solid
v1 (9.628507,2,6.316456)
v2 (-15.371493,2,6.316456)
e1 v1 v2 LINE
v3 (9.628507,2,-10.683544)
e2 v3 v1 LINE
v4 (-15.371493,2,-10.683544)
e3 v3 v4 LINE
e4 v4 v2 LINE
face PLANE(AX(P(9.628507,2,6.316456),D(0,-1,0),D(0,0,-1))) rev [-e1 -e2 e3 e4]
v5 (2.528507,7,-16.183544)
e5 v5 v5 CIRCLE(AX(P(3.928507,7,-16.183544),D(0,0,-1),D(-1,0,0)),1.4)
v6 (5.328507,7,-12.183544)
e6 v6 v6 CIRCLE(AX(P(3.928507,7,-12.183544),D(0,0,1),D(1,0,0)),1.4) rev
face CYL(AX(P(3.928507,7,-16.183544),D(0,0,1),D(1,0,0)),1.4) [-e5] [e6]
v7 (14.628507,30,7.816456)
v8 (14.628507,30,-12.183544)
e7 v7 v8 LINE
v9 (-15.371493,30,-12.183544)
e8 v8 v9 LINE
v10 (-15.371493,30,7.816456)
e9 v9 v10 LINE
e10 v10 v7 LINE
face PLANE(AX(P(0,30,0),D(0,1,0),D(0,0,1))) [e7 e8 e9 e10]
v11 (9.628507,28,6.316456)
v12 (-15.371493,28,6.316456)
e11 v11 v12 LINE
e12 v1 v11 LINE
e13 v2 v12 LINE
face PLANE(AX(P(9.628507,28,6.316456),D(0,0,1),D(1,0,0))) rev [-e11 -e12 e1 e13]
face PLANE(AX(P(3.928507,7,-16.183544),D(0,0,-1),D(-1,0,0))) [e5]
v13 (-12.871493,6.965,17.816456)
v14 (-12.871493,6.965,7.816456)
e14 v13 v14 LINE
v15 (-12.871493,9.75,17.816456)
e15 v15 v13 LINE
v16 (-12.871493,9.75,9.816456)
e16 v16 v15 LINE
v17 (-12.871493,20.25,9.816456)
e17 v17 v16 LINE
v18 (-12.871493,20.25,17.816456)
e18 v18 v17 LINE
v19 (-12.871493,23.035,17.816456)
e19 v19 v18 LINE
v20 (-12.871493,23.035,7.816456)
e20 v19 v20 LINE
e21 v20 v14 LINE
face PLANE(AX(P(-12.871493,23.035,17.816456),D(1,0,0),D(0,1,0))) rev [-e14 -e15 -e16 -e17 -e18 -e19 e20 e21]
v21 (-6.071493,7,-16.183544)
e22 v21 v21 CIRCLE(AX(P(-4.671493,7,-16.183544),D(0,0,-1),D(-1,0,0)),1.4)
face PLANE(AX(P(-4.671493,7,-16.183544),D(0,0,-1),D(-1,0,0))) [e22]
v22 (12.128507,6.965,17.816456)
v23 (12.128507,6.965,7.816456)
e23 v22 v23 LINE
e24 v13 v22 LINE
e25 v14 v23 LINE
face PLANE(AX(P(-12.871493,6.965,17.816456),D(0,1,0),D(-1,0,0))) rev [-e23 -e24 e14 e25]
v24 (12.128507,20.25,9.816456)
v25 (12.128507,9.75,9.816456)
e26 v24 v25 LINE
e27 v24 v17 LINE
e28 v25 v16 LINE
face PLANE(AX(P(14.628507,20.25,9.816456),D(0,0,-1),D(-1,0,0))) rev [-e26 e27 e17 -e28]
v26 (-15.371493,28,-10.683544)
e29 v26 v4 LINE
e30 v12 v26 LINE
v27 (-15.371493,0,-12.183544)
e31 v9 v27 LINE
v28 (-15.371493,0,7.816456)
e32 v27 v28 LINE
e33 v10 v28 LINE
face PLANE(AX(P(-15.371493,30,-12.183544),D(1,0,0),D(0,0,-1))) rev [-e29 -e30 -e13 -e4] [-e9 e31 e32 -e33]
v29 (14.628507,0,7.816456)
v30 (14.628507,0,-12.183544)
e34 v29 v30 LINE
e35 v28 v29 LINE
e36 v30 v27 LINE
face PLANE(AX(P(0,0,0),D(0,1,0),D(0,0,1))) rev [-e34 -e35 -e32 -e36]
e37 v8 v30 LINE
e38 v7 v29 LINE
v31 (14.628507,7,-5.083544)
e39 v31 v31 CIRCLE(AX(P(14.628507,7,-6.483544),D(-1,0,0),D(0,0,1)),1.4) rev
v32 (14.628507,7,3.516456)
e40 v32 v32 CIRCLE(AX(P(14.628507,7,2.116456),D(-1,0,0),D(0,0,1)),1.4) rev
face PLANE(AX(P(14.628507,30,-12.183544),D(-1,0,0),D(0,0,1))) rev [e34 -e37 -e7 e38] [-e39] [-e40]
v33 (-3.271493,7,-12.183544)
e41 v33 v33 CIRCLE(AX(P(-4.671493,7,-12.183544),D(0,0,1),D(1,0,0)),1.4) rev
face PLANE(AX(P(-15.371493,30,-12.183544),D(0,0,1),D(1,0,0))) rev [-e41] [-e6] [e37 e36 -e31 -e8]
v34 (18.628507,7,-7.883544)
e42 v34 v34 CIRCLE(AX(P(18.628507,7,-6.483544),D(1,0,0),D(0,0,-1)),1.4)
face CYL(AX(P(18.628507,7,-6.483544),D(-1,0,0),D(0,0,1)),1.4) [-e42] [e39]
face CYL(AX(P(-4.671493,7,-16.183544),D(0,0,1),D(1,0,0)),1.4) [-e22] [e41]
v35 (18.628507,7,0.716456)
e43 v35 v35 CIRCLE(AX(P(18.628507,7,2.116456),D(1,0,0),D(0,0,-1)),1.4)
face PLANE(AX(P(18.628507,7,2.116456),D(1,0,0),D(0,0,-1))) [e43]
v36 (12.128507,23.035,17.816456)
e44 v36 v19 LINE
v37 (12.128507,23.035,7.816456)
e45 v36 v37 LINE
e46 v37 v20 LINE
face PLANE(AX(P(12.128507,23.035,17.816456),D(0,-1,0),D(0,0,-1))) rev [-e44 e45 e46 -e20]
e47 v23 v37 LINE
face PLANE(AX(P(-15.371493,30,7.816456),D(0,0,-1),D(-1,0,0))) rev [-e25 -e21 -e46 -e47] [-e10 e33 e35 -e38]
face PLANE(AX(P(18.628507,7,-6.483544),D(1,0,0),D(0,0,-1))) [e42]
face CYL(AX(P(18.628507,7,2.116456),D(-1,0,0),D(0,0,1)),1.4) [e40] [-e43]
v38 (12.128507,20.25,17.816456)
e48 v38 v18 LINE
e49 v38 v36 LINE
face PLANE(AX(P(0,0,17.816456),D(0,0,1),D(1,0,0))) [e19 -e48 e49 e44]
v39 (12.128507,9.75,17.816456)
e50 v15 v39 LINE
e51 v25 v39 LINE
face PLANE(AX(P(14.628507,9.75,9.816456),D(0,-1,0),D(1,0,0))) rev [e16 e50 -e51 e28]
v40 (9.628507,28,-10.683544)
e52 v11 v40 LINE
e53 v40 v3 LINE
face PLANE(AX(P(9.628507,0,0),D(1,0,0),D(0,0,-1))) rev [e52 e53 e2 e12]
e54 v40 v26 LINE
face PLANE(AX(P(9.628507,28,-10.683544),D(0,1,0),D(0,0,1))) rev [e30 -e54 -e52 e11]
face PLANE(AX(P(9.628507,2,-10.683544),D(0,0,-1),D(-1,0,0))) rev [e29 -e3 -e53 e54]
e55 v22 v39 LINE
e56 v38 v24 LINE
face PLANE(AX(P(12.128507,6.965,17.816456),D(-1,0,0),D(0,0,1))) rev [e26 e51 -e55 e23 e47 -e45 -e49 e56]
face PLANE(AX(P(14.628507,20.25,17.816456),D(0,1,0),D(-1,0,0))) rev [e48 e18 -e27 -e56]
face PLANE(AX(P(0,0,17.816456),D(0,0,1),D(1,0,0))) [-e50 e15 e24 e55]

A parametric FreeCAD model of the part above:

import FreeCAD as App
import Part
import Sketcher

V = App.Vector
Q = App.Units.Quantity


def add_polygon(sketch, points):
    """Adds a closed chain of lines whose ends are joined by coincident constraints."""
    first, n = sketch.GeometryCount, len(points)
    for a, b in zip(points, points[1:] + points[:1]):
        sketch.addGeometry(Part.LineSegment(App.Vector(*a, 0), App.Vector(*b, 0)), False)
    for i in range(n):
        sketch.addConstraint(Sketcher.Constraint("Coincident", first + i, 2, first + (i + 1) % n, 1))

doc = App.newDocument("Part")
params = doc.addObject("Spreadsheet::Sheet", "Params")
for row, (alias, value) in enumerate([
    ("sketch1_width", "30 mm"),
    ("sketch1_height", "20 mm"),
    ("pad1_length", "30 mm"),
    ("sketch2_width", "25 mm"),
    ("sketch2_height", "16.07 mm"),
    ("pad2_length", "10 mm"),
    ("sketch3_height", "8 mm"),
    ("sketch3_width", "10.5 mm"),
    ("sketch4_width", "26 mm"),
    ("sketch4_height", "17 mm"),
    ("pocket2_length", "25 mm"),
    ("sketch5_diameter", "2.8 mm"),
    ("pad3_length", "4 mm"),
    ("sketch6_diameter", "2.8 mm"),
    ("pad4_length", "4 mm"),
], start=1):
    params.set(f"A{row}", alias)
    params.set(f"B{row}", "=" + value)
    params.setAlias(f"B{row}", alias)

body = doc.addObject("PartDesign::Body", "Body")

# Sketch on XZ plane
sketch1 = body.newObject("Sketcher::SketchObject", "Sketch")
sketch1.AttachmentSupport = (doc.getObject("XZ_Plane"), [""])
sketch1.MapMode = "FlatFace"
add_polygon(sketch1, [(-15, -12), (-15, 8), (15, 8), (15, -12)])  # lines 0-3
sketch1.addConstraint([
    Sketcher.Constraint("Vertical", 0),
    Sketcher.Constraint("Horizontal", 1),
    Sketcher.Constraint("Vertical", 2),
    Sketcher.Constraint("Horizontal", 3),
    Sketcher.Constraint("DistanceX", 1, 1, 1, 2, Q("30 mm")),
    Sketcher.Constraint("DistanceY", 0, 1, 0, 2, Q("20 mm")),
    Sketcher.Constraint("DistanceX", 0, 2, -1, 1, Q("15.371493 mm")),
    Sketcher.Constraint("DistanceY", -1, 1, 0, 2, Q("7.816456 mm")),
])
sketch1.setExpression("Constraints[8]", "Params.sketch1_width")
sketch1.setExpression("Constraints[9]", "Params.sketch1_height")
pad1 = body.newObject("PartDesign::Pad", "Pad")
pad1.Profile = sketch1
pad1.setExpression("Length", "Params.pad1_length")
pad1.Reversed = True

# Sketch on XY plane
sketch2 = body.newObject("Sketcher::SketchObject", "Sketch001")
sketch2.AttachmentSupport = (doc.getObject("XY_Plane"), [""])
sketch2.MapMode = "FlatFace"
sketch2.AttachmentOffset = App.Placement(V(0, 0, 7.816456), App.Rotation())
add_polygon(sketch2, [(-13, 23), (-13, 7), (12, 7), (12, 23)])  # lines 0-3
sketch2.addConstraint([
    Sketcher.Constraint("Vertical", 0),
    Sketcher.Constraint("Horizontal", 1),
    Sketcher.Constraint("Vertical", 2),
    Sketcher.Constraint("Horizontal", 3),
    Sketcher.Constraint("DistanceX", 1, 1, 1, 2, Q("25 mm")),
    Sketcher.Constraint("DistanceY", 0, 2, 0, 1, Q("16.07 mm")),
    Sketcher.Constraint("DistanceY", -1, 1, 0, 2, Q("6.965 mm")),
    Sketcher.Constraint("DistanceX", 0, 2, -1, 1, Q("12.871493 mm")),
])
sketch2.setExpression("Constraints[8]", "Params.sketch2_width")
sketch2.setExpression("Constraints[9]", "Params.sketch2_height")
pad2 = body.newObject("PartDesign::Pad", "Pad001")
pad2.Profile = sketch2
pad2.setExpression("Length", "Params.pad2_length")

# Sketch on YZ plane
sketch3 = body.newObject("Sketcher::SketchObject", "Sketch002")
sketch3.AttachmentSupport = (doc.getObject("YZ_Plane"), [""])
sketch3.MapMode = "FlatFace"
sketch3.AttachmentOffset = App.Placement(V(0, 0, -12.871493), App.Rotation())
add_polygon(sketch3, [(20, 10), (10, 10), (10, 18), (20, 18)])  # lines 0-3
sketch3.addConstraint([
    Sketcher.Constraint("Horizontal", 0),
    Sketcher.Constraint("Vertical", 1),
    Sketcher.Constraint("Horizontal", 2),
    Sketcher.Constraint("Vertical", 3),
    Sketcher.Constraint("DistanceY", 1, 1, 1, 2, Q("8 mm")),
    Sketcher.Constraint("DistanceX", 0, 2, 0, 1, Q("10.5 mm")),
    Sketcher.Constraint("DistanceX", -1, 1, 0, 2, Q("9.75 mm")),
    Sketcher.Constraint("DistanceY", -1, 1, 0, 2, Q("9.816456 mm")),
])
sketch3.setExpression("Constraints[8]", "Params.sketch3_height")
sketch3.setExpression("Constraints[9]", "Params.sketch3_width")
pocket1 = body.newObject("PartDesign::Pocket", "Pocket")
pocket1.Profile = sketch3
pocket1.Type = "ThroughAll"
pocket1.Reversed = True

# Sketch on YZ plane
sketch4 = body.newObject("Sketcher::SketchObject", "Sketch003")
sketch4.AttachmentSupport = (doc.getObject("YZ_Plane"), [""])
sketch4.MapMode = "FlatFace"
sketch4.AttachmentOffset = App.Placement(V(0, 0, -15.371493), App.Rotation())
add_polygon(sketch4, [(28, -11), (2, -11), (2, 6), (28, 6)])  # lines 0-3
sketch4.addConstraint([
    Sketcher.Constraint("Horizontal", 0),
    Sketcher.Constraint("Vertical", 1),
    Sketcher.Constraint("Horizontal", 2),
    Sketcher.Constraint("Vertical", 3),
    Sketcher.Constraint("DistanceX", 0, 2, 0, 1, Q("26 mm")),
    Sketcher.Constraint("DistanceY", 1, 1, 1, 2, Q("17 mm")),
    Sketcher.Constraint("DistanceX", -1, 1, 0, 2, Q("2 mm")),
    Sketcher.Constraint("DistanceY", 0, 2, -1, 1, Q("10.683544 mm")),
])
sketch4.setExpression("Constraints[8]", "Params.sketch4_width")
sketch4.setExpression("Constraints[9]", "Params.sketch4_height")
pocket2 = body.newObject("PartDesign::Pocket", "Pocket001")
pocket2.Profile = sketch4
pocket2.setExpression("Length", "Params.pocket2_length")
pocket2.Reversed = True

# Sketch on YZ plane
sketch5 = body.newObject("Sketcher::SketchObject", "Sketch004")
sketch5.AttachmentSupport = (doc.getObject("YZ_Plane"), [""])
sketch5.MapMode = "FlatFace"
sketch5.AttachmentOffset = App.Placement(V(0, 0, 14.628507), App.Rotation())
sketch5.addGeometry([
    Part.Circle(V(7, 2.1, 0), V(0, 0, 1), 1.4),
    Part.Circle(V(7, -6.5, 0), V(0, 0, 1), 1.4),
], False)
sketch5.addConstraint([
    Sketcher.Constraint("Equal", 0, 1),
    Sketcher.Constraint("Vertical", 0, 3, 1, 3),
    Sketcher.Constraint("Diameter", 0, Q("2.8 mm")),
    Sketcher.Constraint("DistanceX", -1, 1, 0, 3, Q("7 mm")),
    Sketcher.Constraint("DistanceY", 1, 3, 0, 3, Q("8.6 mm")),
    Sketcher.Constraint("DistanceY", -1, 1, 0, 3, Q("2.116456 mm")),
])
sketch5.setExpression("Constraints[2]", "Params.sketch5_diameter")
pad3 = body.newObject("PartDesign::Pad", "Pad002")
pad3.Profile = sketch5
pad3.setExpression("Length", "Params.pad3_length")

# Sketch on XY plane
sketch6 = body.newObject("Sketcher::SketchObject", "Sketch005")
sketch6.AttachmentSupport = (doc.getObject("XY_Plane"), [""])
sketch6.MapMode = "FlatFace"
sketch6.AttachmentOffset = App.Placement(V(0, 0, -12.183544), App.Rotation())
sketch6.addGeometry([
    Part.Circle(V(3.9, 7, 0), V(0, 0, 1), 1.4),
    Part.Circle(V(-4.7, 7, 0), V(0, 0, 1), 1.4),
], False)
sketch6.addConstraint([
    Sketcher.Constraint("Equal", 0, 1),
    Sketcher.Constraint("Horizontal", 0, 3, 1, 3),
    Sketcher.Constraint("Diameter", 0, Q("2.8 mm")),
    Sketcher.Constraint("DistanceY", -1, 1, 0, 3, Q("7 mm")),
    Sketcher.Constraint("DistanceX", 1, 3, 0, 3, Q("8.6 mm")),
    Sketcher.Constraint("DistanceX", -1, 1, 0, 3, Q("3.928507 mm")),
])
sketch6.setExpression("Constraints[2]", "Params.sketch6_diameter")
pad4 = body.newObject("PartDesign::Pad", "Pad003")
pad4.Profile = sketch6
pad4.setExpression("Length", "Params.pad4_length")
pad4.Reversed = True

doc.recompute()
